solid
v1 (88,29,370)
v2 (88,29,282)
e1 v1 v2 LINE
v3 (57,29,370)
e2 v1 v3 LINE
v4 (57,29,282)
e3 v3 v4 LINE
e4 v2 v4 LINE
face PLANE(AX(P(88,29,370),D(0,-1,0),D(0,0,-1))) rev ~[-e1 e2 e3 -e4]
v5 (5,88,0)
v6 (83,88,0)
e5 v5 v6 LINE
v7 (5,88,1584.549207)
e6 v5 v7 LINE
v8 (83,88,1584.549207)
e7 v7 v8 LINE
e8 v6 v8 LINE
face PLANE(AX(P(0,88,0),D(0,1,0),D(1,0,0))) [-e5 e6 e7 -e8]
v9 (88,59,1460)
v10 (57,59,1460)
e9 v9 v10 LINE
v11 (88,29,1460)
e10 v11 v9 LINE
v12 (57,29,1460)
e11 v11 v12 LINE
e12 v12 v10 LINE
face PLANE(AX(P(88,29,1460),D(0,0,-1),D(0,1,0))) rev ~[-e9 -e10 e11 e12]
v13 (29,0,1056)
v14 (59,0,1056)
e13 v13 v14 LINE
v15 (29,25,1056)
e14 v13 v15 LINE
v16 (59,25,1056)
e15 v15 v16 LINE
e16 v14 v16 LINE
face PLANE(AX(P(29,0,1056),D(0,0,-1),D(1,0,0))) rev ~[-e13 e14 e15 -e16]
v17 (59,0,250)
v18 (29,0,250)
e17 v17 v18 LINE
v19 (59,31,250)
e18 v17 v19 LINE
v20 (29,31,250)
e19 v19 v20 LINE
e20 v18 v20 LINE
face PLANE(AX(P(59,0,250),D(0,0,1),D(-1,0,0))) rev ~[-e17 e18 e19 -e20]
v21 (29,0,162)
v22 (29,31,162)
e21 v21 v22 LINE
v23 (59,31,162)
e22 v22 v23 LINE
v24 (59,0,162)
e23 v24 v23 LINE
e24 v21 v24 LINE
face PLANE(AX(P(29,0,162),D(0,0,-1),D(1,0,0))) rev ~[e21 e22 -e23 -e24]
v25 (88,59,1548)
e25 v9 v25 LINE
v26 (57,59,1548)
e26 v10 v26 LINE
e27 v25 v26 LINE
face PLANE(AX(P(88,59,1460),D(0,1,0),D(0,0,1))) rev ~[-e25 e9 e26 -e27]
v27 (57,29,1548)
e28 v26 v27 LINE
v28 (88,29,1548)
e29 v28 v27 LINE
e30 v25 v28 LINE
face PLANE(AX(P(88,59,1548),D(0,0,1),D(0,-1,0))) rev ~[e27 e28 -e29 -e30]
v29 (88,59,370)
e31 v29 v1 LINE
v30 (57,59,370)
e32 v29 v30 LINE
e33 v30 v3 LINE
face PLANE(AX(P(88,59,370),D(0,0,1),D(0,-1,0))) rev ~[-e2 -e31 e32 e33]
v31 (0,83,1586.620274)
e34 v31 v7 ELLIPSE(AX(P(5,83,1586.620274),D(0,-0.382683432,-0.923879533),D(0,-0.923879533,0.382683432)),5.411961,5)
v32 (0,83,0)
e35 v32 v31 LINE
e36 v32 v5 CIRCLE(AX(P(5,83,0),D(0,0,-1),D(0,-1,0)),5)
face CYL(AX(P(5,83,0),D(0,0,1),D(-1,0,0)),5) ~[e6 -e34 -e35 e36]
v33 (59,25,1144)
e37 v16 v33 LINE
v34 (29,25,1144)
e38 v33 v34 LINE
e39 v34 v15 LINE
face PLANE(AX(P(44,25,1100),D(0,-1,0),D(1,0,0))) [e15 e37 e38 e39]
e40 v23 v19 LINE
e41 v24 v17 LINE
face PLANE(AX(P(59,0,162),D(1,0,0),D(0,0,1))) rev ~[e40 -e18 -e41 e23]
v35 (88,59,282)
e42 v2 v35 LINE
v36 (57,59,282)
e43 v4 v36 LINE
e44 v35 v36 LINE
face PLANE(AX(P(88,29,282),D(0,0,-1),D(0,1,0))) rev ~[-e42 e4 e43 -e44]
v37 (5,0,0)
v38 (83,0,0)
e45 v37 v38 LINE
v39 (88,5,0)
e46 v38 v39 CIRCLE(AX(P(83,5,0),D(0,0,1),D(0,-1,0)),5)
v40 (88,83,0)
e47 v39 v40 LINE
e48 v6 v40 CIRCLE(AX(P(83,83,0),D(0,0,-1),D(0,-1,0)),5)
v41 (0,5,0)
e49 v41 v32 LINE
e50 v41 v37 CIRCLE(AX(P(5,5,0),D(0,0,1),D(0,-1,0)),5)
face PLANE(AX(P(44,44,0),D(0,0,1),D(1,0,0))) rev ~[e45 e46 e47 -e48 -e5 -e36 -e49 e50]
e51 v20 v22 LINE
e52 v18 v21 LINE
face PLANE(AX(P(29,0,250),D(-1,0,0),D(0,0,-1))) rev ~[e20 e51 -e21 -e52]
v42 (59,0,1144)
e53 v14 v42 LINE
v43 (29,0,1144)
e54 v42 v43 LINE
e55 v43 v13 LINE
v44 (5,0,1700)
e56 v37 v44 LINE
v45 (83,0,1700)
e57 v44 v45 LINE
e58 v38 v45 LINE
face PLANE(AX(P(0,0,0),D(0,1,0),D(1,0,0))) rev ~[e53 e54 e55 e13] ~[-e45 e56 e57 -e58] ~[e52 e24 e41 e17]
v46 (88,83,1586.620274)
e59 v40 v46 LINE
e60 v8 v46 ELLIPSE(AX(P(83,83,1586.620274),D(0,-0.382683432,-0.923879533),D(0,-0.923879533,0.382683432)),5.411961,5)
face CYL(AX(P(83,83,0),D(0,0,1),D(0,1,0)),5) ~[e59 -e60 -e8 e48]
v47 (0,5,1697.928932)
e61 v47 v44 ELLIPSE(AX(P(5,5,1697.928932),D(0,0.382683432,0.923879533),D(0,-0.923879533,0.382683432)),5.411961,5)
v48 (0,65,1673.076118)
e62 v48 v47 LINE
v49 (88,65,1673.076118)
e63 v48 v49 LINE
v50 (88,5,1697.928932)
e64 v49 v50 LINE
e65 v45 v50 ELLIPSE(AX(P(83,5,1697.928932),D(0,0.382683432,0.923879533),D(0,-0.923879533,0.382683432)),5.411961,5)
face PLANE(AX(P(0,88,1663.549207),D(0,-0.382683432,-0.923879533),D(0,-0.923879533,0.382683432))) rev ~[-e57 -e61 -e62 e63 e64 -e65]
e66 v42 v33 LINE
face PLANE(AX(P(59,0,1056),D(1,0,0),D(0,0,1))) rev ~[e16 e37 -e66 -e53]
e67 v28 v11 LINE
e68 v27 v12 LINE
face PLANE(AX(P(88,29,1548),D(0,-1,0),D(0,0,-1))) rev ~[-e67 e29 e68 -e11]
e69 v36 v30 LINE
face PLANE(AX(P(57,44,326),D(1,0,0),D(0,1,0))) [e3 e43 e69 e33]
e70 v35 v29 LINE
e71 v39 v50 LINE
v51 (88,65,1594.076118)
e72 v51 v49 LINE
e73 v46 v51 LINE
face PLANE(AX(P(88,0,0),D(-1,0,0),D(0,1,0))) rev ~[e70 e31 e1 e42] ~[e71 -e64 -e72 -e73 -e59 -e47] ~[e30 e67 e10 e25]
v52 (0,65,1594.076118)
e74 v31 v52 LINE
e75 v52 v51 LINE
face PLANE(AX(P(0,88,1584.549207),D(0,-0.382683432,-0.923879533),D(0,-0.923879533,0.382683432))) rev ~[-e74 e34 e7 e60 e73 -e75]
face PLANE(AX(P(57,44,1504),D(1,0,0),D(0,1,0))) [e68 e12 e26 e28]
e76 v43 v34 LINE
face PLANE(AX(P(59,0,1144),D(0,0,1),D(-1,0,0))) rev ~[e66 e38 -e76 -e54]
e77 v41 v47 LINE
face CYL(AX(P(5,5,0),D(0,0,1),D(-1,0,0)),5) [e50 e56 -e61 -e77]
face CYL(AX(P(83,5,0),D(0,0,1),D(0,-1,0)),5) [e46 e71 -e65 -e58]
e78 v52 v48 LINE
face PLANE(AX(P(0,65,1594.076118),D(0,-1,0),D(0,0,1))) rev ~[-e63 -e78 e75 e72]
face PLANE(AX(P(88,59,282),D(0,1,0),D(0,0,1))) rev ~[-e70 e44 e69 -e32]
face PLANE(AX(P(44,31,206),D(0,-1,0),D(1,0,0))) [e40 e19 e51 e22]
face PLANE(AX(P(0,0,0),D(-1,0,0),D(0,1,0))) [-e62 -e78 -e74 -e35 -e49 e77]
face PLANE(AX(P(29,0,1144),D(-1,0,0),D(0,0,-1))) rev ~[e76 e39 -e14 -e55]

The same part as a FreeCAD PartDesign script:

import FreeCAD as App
import Part
import Sketcher
Q = App.Units.Quantity


def edges_at(feature, points):
    """Names of the edges that pass closest to the given points."""
    edges = feature.Shape.Edges
    near = lambda p: min(range(len(edges)), key=lambda i: edges[i].distToShape(Part.Vertex(*p))[0])
    return sorted({f"Edge{near(p) + 1}" for p in points})


def add_polygon(sketch, points):
    """Adds a closed chain of lines whose ends are joined by coincident constraints."""
    first, n = sketch.GeometryCount, len(points)
    for a, b in zip(points, points[1:] + points[:1]):
        sketch.addGeometry(Part.LineSegment(App.Vector(*a, 0), App.Vector(*b, 0)), False)
    for i in range(n):
        sketch.addConstraint(Sketcher.Constraint("Coincident", first + i, 2, first + (i + 1) % n, 1))

doc = App.newDocument("Part")
body = doc.addObject("PartDesign::Body", "Body")

sketch1 = body.newObject("Sketcher::SketchObject", "Sketch")
sketch1.AttachmentSupport = (doc.getObject("XY_Plane"), [""])
sketch1.MapMode = "FlatFace"
add_polygon(sketch1, [(0, 88), (0, 0), (88, 0), (88, 88)])
sketch1.addConstraint(Sketcher.Constraint("Vertical", 0))
sketch1.addConstraint(Sketcher.Constraint("Horizontal", 1))
sketch1.addConstraint(Sketcher.Constraint("Vertical", 2))
sketch1.addConstraint(Sketcher.Constraint("Horizontal", 3))
sketch1.addConstraint(Sketcher.Constraint("Coincident", 0, 2, -1, 1))
sketch1.addConstraint(Sketcher.Constraint("Equal", 3, 0))
sketch1.addConstraint(Sketcher.Constraint("DistanceX", 1, 1, 1, 2, 88.0))
pad1 = body.newObject("PartDesign::Pad", "Pad")
pad1.Profile = sketch1
pad1.Length = 1700

sketch2 = body.newObject("Sketcher::SketchObject", "Sketch001")
sketch2.AttachmentSupport = (doc.getObject("YZ_Plane"), [""])
sketch2.MapMode = "FlatFace"
add_polygon(sketch2, [(88, 1663.549207), (0, 1700), (88, 1700)])
sketch2.addConstraint(Sketcher.Constraint("Horizontal", 1))
sketch2.addConstraint(Sketcher.Constraint("Vertical", 2))
sketch2.addConstraint(Sketcher.Constraint("PointOnObject", 0, 2, -2))
sketch2.addConstraint(Sketcher.Constraint("DistanceX", 1, 1, 1, 2, 88.0))
sketch2.addConstraint(Sketcher.Constraint("DistanceY", -1, 1, 0, 2, 1700.0))
sketch2.addConstraint(Sketcher.Constraint("Angle", 0, Q("157.5 deg")))
pocket1 = body.newObject("PartDesign::Pocket", "Pocket")
pocket1.Profile = sketch2
pocket1.Type = "ThroughAll"
pocket1.Reversed = True

sketch3 = body.newObject("Sketcher::SketchObject", "Sketch002")
sketch3.AttachmentSupport = (doc.getObject("YZ_Plane"), [""])
sketch3.MapMode = "FlatFace"
add_polygon(sketch3, [(65, 1594.076118), (65, 1673.076118), (88, 1663.549207), (88, 1584.549207)])
sketch3.addConstraint(Sketcher.Constraint("Vertical", 0))
sketch3.addConstraint(Sketcher.Constraint("Vertical", 2))
sketch3.addConstraint(Sketcher.Constraint("Parallel", 1, 3))
sketch3.addConstraint(Sketcher.Constraint("DistanceY", 0, 1, 0, 2, 79.0))
sketch3.addConstraint(Sketcher.Constraint("DistanceX", -1, 1, 0, 2, 65.0))
sketch3.addConstraint(Sketcher.Constraint("DistanceX", -1, 1, 1, 2, 88.0))
sketch3.addConstraint(Sketcher.Constraint("Angle", 1, Q("-22.5 deg")))
sketch3.addConstraint(Sketcher.Constraint("DistanceY", -1, 1, 0, 2, 1673.076118))
pocket2 = body.newObject("PartDesign::Pocket", "Pocket001")
pocket2.Profile = sketch3
pocket2.Type = "ThroughAll"
pocket2.Reversed = True

sketch4 = body.newObject("Sketcher::SketchObject", "Sketch003")
sketch4.AttachmentSupport = (doc.getObject("YZ_Plane"), [""])
sketch4.MapMode = "FlatFace"
sketch4.AttachmentOffset = App.Placement(App.Vector(0, 0, 88), App.Rotation())
add_polygon(sketch4, [(29, 282), (59, 282), (59, 370), (29, 370)])
sketch4.addConstraint(Sketcher.Constraint("Horizontal", 0))
sketch4.addConstraint(Sketcher.Constraint("Vertical", 1))
sketch4.addConstraint(Sketcher.Constraint("Horizontal", 2))
sketch4.addConstraint(Sketcher.Constraint("Vertical", 3))
sketch4.addConstraint(Sketcher.Constraint("DistanceX", 0, 1, 0, 2, 30.0))
sketch4.addConstraint(Sketcher.Constraint("DistanceY", 1, 1, 1, 2, 88.0))
sketch4.addConstraint(Sketcher.Constraint("DistanceX", -1, 1, 0, 2, 59.0))
sketch4.addConstraint(Sketcher.Constraint("DistanceY", -1, 1, 0, 2, 282.0))
pocket3 = body.newObject("PartDesign::Pocket", "Pocket002")
pocket3.Profile = sketch4
pocket3.Length = 31

sketch5 = body.newObject("Sketcher::SketchObject", "Sketch004")
sketch5.AttachmentSupport = (doc.getObject("YZ_Plane"), [""])
sketch5.MapMode = "FlatFace"
sketch5.AttachmentOffset = App.Placement(App.Vector(0, 0, 88), App.Rotation())
add_polygon(sketch5, [(29, 1460), (59, 1460), (59, 1548), (29, 1548)])
sketch5.addConstraint(Sketcher.Constraint("Horizontal", 0))
sketch5.addConstraint(Sketcher.Constraint("Vertical", 1))
sketch5.addConstraint(Sketcher.Constraint("Horizontal", 2))
sketch5.addConstraint(Sketcher.Constraint("Vertical", 3))
sketch5.addConstraint(Sketcher.Constraint("DistanceX", 0, 1, 0, 2, 30.0))
sketch5.addConstraint(Sketcher.Constraint("DistanceY", 1, 1, 1, 2, 88.0))
sketch5.addConstraint(Sketcher.Constraint("DistanceX", -1, 1, 0, 2, 59.0))
sketch5.addConstraint(Sketcher.Constraint("DistanceY", -1, 1, 0, 2, 1460.0))
pocket4 = body.newObject("PartDesign::Pocket", "Pocket003")
pocket4.Profile = sketch5
pocket4.Length = 31

sketch6 = body.newObject("Sketcher::SketchObject", "Sketch005")
sketch6.AttachmentSupport = (doc.getObject("XZ_Plane"), [""])
sketch6.MapMode = "FlatFace"
add_polygon(sketch6, [(29, 162), (59, 162), (59, 250), (29, 250)])
sketch6.addConstraint(Sketcher.Constraint("Horizontal", 0))
sketch6.addConstraint(Sketcher.Constraint("Vertical", 1))
sketch6.addConstraint(Sketcher.Constraint("Horizontal", 2))
sketch6.addConstraint(Sketcher.Constraint("Vertical", 3))
sketch6.addConstraint(Sketcher.Constraint("DistanceX", 0, 1, 0, 2, 30.0))
sketch6.addConstraint(Sketcher.Constraint("DistanceY", 1, 1, 1, 2, 88.0))
sketch6.addConstraint(Sketcher.Constraint("DistanceX", -1, 1, 0, 2, 59.0))
sketch6.addConstraint(Sketcher.Constraint("DistanceY", -1, 1, 0, 2, 162.0))
pocket5 = body.newObject("PartDesign::Pocket", "Pocket004")
pocket5.Profile = sketch6
pocket5.Length = 31

sketch7 = body.newObject("Sketcher::SketchObject", "Sketch006")
sketch7.AttachmentSupport = (doc.getObject("XZ_Plane"), [""])
sketch7.MapMode = "FlatFace"
add_polygon(sketch7, [(29, 1056), (59, 1056), (59, 1144), (29, 1144)])
sketch7.addConstraint(Sketcher.Constraint("Horizontal", 0))
sketch7.addConstraint(Sketcher.Constraint("Vertical", 1))
sketch7.addConstraint(Sketcher.Constraint("Horizontal", 2))
sketch7.addConstraint(Sketcher.Constraint("Vertical", 3))
sketch7.addConstraint(Sketcher.Constraint("DistanceX", 0, 1, 0, 2, 30.0))
sketch7.addConstraint(Sketcher.Constraint("DistanceY", 1, 1, 1, 2, 88.0))
sketch7.addConstraint(Sketcher.Constraint("DistanceX", -1, 1, 0, 2, 59.0))
sketch7.addConstraint(Sketcher.Constraint("DistanceY", -1, 1, 0, 2, 1056.0))
pocket6 = body.newObject("PartDesign::Pocket", "Pocket005")
pocket6.Profile = sketch7
pocket6.Length = 25
doc.recompute()

fillet = body.newObject("PartDesign::Fillet", "Fillet")
fillet.Base = (pocket6, edges_at(pocket6, [
    (88, 0, 850),
    (0, 0, 850),
    (88, 88, 792.275),
    (0, 88, 792.275),
]))
fillet.Radius = 5

doc.recompute()
